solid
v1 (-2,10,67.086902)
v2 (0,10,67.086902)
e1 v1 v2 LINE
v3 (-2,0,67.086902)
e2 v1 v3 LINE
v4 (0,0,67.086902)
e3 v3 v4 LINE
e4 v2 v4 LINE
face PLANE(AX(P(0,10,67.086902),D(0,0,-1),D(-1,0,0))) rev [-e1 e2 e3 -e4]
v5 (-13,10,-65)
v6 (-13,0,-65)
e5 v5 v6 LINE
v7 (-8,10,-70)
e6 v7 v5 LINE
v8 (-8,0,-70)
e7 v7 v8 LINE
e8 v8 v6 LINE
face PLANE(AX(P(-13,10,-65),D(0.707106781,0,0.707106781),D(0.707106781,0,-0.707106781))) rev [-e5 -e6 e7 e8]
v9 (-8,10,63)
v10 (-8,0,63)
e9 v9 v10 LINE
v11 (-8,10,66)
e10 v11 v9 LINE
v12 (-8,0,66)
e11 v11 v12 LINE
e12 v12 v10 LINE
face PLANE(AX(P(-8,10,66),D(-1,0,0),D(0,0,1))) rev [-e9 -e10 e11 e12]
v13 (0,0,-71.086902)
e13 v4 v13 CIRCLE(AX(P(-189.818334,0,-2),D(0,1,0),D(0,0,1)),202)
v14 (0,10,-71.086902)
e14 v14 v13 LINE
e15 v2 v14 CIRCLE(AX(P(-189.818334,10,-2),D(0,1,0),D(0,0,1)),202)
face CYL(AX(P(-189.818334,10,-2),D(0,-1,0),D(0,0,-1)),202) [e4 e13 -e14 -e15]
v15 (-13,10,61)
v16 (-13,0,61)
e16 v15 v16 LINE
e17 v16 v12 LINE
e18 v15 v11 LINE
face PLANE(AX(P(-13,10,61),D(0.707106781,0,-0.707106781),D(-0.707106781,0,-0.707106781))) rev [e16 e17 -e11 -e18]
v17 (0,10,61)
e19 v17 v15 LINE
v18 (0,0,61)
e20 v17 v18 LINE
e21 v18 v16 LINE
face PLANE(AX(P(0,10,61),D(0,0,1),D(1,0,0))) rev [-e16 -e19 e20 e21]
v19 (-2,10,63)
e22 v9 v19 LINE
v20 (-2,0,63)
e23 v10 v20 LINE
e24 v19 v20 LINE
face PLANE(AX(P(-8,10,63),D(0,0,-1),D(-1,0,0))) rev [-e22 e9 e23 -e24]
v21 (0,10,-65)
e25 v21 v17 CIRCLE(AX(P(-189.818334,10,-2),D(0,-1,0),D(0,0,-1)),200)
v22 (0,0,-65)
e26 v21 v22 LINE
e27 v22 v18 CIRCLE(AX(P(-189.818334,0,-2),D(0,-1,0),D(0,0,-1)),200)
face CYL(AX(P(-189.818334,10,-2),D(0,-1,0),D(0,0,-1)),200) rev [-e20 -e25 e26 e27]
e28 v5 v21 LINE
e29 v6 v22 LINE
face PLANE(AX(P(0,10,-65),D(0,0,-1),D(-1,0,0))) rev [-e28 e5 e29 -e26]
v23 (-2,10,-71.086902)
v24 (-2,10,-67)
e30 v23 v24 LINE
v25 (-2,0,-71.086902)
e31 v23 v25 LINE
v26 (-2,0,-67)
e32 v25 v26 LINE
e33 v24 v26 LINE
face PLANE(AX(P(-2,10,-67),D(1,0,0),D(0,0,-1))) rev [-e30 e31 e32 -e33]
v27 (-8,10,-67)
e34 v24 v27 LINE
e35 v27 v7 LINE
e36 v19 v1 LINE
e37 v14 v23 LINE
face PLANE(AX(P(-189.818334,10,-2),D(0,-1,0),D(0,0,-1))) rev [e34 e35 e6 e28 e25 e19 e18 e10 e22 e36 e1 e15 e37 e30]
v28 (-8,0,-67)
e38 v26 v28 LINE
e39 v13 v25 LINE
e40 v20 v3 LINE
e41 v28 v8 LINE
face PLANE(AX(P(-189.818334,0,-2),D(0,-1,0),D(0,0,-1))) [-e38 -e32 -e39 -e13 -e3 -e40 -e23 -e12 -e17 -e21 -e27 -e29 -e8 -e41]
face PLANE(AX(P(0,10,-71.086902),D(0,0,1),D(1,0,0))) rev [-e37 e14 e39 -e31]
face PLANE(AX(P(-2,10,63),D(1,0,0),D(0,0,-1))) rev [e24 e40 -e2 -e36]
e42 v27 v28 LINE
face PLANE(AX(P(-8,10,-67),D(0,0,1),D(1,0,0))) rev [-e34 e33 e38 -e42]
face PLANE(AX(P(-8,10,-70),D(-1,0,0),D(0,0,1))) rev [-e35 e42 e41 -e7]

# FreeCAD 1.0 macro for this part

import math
import FreeCAD as App
import Part
import Sketcher
from FreeCAD import Vector

doc = App.newDocument("Part")
body = doc.addObject("PartDesign::Body", "Body")

sketch1 = doc.addObject("Sketcher::SketchObject", "Sketch")
body.addObject(sketch1)
sketch1.AttachmentSupport = (doc.XZ_Plane, [""])
sketch1.MapMode = "FlatFace"
sketch1.addGeometry(Part.LineSegment(Vector(0, 61, 0), Vector(-13, 61, 0)), False)
sketch1.addGeometry(Part.LineSegment(Vector(-13, 61, 0), Vector(-8, 66, 0)), False)
sketch1.addGeometry(Part.LineSegment(Vector(-8, 66, 0), Vector(-8, 63, 0)), False)
sketch1.addGeometry(Part.LineSegment(Vector(-8, 63, 0), Vector(-2, 63, 0)), False)
sketch1.addGeometry(Part.LineSegment(Vector(-2, 63, 0), Vector(-2, 67.1, 0)), False)
sketch1.addGeometry(Part.LineSegment(Vector(-2, 67.1, 0), Vector(0, 67.1, 0)), False)
sketch1.addGeometry(Part.ArcOfCircle(Part.Circle(Vector(-189.8, -2, 0), Vector(0, 0, 1), 202), math.radians(-20), math.radians(20)), False)
sketch1.addGeometry(Part.LineSegment(Vector(0, -71.1, 0), Vector(-2, -71.1, 0)), False)
sketch1.addGeometry(Part.LineSegment(Vector(-2, -71.1, 0), Vector(-2, -67, 0)), False)
sketch1.addGeometry(Part.LineSegment(Vector(-2, -67, 0), Vector(-8, -67, 0)), False)
sketch1.addGeometry(Part.LineSegment(Vector(-8, -67, 0), Vector(-8, -70, 0)), False)
sketch1.addGeometry(Part.LineSegment(Vector(-8, -70, 0), Vector(-13, -65, 0)), False)
sketch1.addGeometry(Part.LineSegment(Vector(-13, -65, 0), Vector(0, -65, 0)), False)
sketch1.addGeometry(Part.ArcOfCircle(Part.Circle(Vector(-189.8, -2, 0), Vector(0, 0, 1), 200), math.radians(-18), math.radians(18)), False)
sketch1.addConstraint(Sketcher.Constraint("Coincident", 0, 2, 1, 1))
sketch1.addConstraint(Sketcher.Constraint("Coincident", 1, 2, 2, 1))
sketch1.addConstraint(Sketcher.Constraint("Coincident", 2, 2, 3, 1))
sketch1.addConstraint(Sketcher.Constraint("Coincident", 3, 2, 4, 1))
sketch1.addConstraint(Sketcher.Constraint("Coincident", 4, 2, 5, 1))
sketch1.addConstraint(Sketcher.Constraint("Coincident", 5, 2, 6, 2))
sketch1.addConstraint(Sketcher.Constraint("Coincident", 6, 1, 7, 1))
sketch1.addConstraint(Sketcher.Constraint("Coincident", 7, 2, 8, 1))
sketch1.addConstraint(Sketcher.Constraint("Coincident", 8, 2, 9, 1))
sketch1.addConstraint(Sketcher.Constraint("Coincident", 9, 2, 10, 1))
sketch1.addConstraint(Sketcher.Constraint("Coincident", 10, 2, 11, 1))
sketch1.addConstraint(Sketcher.Constraint("Coincident", 11, 2, 12, 1))
sketch1.addConstraint(Sketcher.Constraint("Coincident", 12, 2, 13, 1))
sketch1.addConstraint(Sketcher.Constraint("Coincident", 13, 2, 0, 1))
sketch1.addConstraint(Sketcher.Constraint("Horizontal", 0))
sketch1.addConstraint(Sketcher.Constraint("Vertical", 2))
sketch1.addConstraint(Sketcher.Constraint("Horizontal", 3))
sketch1.addConstraint(Sketcher.Constraint("Vertical", 4))
sketch1.addConstraint(Sketcher.Constraint("Horizontal", 5))
sketch1.addConstraint(Sketcher.Constraint("Horizontal", 7))
sketch1.addConstraint(Sketcher.Constraint("Vertical", 8))
sketch1.addConstraint(Sketcher.Constraint("Horizontal", 9))
sketch1.addConstraint(Sketcher.Constraint("Vertical", 10))
sketch1.addConstraint(Sketcher.Constraint("Horizontal", 12))
sketch1.addConstraint(Sketcher.Constraint("Coincident", 13, 3, 6, 3))
sketch1.addConstraint(Sketcher.Constraint("PointOnObject", 5, 2, -2))
sketch1.addConstraint(Sketcher.Constraint("PointOnObject", 6, 1, -2))
sketch1.addConstraint(Sketcher.Constraint("PointOnObject", 12, 2, -2))
sketch1.addConstraint(Sketcher.Constraint("PointOnObject", 13, 2, -2))
sketch1.addConstraint(Sketcher.Constraint("Perpendicular", 1, 11))
sketch1.addConstraint(Sketcher.Constraint("Vertical", 4, 2, 7, 2))
sketch1.addConstraint(Sketcher.Constraint("Vertical", 2, 2, 9, 2))
sketch1.addConstraint(Sketcher.Constraint("Vertical", 0, 2, 11, 2))
sketch1.addConstraint(Sketcher.Constraint("Equal", 4, 8))
sketch1.addConstraint(Sketcher.Constraint("Equal", 2, 10))
sketch1.addConstraint(Sketcher.Constraint("Radius", 6, 202.0))
sketch1.addConstraint(Sketcher.Constraint("Radius", 13, 200.0))
sketch1.addConstraint(Sketcher.Constraint("DistanceX", 0, 2, 0, 1, 13.0))
sketch1.addConstraint(Sketcher.Constraint("DistanceX", 3, 1, 3, 2, 6.0))
sketch1.addConstraint(Sketcher.Constraint("DistanceX", 5, 1, 5, 2, 2.0))
sketch1.addConstraint(Sketcher.Constraint("DistanceY", 2, 2, 2, 1, 3.0))
sketch1.addConstraint(Sketcher.Constraint("DistanceY", 6, 3, -1, 1, 2.0))
sketch1.addConstraint(Sketcher.Constraint("DistanceY", -1, 1, 0, 2, 61.0))
pad1 = doc.addObject("PartDesign::Pad", "Pad")
body.addObject(pad1)
pad1.Profile = sketch1
pad1.Length = 10
pad1.Reversed = True

doc.recompute()
